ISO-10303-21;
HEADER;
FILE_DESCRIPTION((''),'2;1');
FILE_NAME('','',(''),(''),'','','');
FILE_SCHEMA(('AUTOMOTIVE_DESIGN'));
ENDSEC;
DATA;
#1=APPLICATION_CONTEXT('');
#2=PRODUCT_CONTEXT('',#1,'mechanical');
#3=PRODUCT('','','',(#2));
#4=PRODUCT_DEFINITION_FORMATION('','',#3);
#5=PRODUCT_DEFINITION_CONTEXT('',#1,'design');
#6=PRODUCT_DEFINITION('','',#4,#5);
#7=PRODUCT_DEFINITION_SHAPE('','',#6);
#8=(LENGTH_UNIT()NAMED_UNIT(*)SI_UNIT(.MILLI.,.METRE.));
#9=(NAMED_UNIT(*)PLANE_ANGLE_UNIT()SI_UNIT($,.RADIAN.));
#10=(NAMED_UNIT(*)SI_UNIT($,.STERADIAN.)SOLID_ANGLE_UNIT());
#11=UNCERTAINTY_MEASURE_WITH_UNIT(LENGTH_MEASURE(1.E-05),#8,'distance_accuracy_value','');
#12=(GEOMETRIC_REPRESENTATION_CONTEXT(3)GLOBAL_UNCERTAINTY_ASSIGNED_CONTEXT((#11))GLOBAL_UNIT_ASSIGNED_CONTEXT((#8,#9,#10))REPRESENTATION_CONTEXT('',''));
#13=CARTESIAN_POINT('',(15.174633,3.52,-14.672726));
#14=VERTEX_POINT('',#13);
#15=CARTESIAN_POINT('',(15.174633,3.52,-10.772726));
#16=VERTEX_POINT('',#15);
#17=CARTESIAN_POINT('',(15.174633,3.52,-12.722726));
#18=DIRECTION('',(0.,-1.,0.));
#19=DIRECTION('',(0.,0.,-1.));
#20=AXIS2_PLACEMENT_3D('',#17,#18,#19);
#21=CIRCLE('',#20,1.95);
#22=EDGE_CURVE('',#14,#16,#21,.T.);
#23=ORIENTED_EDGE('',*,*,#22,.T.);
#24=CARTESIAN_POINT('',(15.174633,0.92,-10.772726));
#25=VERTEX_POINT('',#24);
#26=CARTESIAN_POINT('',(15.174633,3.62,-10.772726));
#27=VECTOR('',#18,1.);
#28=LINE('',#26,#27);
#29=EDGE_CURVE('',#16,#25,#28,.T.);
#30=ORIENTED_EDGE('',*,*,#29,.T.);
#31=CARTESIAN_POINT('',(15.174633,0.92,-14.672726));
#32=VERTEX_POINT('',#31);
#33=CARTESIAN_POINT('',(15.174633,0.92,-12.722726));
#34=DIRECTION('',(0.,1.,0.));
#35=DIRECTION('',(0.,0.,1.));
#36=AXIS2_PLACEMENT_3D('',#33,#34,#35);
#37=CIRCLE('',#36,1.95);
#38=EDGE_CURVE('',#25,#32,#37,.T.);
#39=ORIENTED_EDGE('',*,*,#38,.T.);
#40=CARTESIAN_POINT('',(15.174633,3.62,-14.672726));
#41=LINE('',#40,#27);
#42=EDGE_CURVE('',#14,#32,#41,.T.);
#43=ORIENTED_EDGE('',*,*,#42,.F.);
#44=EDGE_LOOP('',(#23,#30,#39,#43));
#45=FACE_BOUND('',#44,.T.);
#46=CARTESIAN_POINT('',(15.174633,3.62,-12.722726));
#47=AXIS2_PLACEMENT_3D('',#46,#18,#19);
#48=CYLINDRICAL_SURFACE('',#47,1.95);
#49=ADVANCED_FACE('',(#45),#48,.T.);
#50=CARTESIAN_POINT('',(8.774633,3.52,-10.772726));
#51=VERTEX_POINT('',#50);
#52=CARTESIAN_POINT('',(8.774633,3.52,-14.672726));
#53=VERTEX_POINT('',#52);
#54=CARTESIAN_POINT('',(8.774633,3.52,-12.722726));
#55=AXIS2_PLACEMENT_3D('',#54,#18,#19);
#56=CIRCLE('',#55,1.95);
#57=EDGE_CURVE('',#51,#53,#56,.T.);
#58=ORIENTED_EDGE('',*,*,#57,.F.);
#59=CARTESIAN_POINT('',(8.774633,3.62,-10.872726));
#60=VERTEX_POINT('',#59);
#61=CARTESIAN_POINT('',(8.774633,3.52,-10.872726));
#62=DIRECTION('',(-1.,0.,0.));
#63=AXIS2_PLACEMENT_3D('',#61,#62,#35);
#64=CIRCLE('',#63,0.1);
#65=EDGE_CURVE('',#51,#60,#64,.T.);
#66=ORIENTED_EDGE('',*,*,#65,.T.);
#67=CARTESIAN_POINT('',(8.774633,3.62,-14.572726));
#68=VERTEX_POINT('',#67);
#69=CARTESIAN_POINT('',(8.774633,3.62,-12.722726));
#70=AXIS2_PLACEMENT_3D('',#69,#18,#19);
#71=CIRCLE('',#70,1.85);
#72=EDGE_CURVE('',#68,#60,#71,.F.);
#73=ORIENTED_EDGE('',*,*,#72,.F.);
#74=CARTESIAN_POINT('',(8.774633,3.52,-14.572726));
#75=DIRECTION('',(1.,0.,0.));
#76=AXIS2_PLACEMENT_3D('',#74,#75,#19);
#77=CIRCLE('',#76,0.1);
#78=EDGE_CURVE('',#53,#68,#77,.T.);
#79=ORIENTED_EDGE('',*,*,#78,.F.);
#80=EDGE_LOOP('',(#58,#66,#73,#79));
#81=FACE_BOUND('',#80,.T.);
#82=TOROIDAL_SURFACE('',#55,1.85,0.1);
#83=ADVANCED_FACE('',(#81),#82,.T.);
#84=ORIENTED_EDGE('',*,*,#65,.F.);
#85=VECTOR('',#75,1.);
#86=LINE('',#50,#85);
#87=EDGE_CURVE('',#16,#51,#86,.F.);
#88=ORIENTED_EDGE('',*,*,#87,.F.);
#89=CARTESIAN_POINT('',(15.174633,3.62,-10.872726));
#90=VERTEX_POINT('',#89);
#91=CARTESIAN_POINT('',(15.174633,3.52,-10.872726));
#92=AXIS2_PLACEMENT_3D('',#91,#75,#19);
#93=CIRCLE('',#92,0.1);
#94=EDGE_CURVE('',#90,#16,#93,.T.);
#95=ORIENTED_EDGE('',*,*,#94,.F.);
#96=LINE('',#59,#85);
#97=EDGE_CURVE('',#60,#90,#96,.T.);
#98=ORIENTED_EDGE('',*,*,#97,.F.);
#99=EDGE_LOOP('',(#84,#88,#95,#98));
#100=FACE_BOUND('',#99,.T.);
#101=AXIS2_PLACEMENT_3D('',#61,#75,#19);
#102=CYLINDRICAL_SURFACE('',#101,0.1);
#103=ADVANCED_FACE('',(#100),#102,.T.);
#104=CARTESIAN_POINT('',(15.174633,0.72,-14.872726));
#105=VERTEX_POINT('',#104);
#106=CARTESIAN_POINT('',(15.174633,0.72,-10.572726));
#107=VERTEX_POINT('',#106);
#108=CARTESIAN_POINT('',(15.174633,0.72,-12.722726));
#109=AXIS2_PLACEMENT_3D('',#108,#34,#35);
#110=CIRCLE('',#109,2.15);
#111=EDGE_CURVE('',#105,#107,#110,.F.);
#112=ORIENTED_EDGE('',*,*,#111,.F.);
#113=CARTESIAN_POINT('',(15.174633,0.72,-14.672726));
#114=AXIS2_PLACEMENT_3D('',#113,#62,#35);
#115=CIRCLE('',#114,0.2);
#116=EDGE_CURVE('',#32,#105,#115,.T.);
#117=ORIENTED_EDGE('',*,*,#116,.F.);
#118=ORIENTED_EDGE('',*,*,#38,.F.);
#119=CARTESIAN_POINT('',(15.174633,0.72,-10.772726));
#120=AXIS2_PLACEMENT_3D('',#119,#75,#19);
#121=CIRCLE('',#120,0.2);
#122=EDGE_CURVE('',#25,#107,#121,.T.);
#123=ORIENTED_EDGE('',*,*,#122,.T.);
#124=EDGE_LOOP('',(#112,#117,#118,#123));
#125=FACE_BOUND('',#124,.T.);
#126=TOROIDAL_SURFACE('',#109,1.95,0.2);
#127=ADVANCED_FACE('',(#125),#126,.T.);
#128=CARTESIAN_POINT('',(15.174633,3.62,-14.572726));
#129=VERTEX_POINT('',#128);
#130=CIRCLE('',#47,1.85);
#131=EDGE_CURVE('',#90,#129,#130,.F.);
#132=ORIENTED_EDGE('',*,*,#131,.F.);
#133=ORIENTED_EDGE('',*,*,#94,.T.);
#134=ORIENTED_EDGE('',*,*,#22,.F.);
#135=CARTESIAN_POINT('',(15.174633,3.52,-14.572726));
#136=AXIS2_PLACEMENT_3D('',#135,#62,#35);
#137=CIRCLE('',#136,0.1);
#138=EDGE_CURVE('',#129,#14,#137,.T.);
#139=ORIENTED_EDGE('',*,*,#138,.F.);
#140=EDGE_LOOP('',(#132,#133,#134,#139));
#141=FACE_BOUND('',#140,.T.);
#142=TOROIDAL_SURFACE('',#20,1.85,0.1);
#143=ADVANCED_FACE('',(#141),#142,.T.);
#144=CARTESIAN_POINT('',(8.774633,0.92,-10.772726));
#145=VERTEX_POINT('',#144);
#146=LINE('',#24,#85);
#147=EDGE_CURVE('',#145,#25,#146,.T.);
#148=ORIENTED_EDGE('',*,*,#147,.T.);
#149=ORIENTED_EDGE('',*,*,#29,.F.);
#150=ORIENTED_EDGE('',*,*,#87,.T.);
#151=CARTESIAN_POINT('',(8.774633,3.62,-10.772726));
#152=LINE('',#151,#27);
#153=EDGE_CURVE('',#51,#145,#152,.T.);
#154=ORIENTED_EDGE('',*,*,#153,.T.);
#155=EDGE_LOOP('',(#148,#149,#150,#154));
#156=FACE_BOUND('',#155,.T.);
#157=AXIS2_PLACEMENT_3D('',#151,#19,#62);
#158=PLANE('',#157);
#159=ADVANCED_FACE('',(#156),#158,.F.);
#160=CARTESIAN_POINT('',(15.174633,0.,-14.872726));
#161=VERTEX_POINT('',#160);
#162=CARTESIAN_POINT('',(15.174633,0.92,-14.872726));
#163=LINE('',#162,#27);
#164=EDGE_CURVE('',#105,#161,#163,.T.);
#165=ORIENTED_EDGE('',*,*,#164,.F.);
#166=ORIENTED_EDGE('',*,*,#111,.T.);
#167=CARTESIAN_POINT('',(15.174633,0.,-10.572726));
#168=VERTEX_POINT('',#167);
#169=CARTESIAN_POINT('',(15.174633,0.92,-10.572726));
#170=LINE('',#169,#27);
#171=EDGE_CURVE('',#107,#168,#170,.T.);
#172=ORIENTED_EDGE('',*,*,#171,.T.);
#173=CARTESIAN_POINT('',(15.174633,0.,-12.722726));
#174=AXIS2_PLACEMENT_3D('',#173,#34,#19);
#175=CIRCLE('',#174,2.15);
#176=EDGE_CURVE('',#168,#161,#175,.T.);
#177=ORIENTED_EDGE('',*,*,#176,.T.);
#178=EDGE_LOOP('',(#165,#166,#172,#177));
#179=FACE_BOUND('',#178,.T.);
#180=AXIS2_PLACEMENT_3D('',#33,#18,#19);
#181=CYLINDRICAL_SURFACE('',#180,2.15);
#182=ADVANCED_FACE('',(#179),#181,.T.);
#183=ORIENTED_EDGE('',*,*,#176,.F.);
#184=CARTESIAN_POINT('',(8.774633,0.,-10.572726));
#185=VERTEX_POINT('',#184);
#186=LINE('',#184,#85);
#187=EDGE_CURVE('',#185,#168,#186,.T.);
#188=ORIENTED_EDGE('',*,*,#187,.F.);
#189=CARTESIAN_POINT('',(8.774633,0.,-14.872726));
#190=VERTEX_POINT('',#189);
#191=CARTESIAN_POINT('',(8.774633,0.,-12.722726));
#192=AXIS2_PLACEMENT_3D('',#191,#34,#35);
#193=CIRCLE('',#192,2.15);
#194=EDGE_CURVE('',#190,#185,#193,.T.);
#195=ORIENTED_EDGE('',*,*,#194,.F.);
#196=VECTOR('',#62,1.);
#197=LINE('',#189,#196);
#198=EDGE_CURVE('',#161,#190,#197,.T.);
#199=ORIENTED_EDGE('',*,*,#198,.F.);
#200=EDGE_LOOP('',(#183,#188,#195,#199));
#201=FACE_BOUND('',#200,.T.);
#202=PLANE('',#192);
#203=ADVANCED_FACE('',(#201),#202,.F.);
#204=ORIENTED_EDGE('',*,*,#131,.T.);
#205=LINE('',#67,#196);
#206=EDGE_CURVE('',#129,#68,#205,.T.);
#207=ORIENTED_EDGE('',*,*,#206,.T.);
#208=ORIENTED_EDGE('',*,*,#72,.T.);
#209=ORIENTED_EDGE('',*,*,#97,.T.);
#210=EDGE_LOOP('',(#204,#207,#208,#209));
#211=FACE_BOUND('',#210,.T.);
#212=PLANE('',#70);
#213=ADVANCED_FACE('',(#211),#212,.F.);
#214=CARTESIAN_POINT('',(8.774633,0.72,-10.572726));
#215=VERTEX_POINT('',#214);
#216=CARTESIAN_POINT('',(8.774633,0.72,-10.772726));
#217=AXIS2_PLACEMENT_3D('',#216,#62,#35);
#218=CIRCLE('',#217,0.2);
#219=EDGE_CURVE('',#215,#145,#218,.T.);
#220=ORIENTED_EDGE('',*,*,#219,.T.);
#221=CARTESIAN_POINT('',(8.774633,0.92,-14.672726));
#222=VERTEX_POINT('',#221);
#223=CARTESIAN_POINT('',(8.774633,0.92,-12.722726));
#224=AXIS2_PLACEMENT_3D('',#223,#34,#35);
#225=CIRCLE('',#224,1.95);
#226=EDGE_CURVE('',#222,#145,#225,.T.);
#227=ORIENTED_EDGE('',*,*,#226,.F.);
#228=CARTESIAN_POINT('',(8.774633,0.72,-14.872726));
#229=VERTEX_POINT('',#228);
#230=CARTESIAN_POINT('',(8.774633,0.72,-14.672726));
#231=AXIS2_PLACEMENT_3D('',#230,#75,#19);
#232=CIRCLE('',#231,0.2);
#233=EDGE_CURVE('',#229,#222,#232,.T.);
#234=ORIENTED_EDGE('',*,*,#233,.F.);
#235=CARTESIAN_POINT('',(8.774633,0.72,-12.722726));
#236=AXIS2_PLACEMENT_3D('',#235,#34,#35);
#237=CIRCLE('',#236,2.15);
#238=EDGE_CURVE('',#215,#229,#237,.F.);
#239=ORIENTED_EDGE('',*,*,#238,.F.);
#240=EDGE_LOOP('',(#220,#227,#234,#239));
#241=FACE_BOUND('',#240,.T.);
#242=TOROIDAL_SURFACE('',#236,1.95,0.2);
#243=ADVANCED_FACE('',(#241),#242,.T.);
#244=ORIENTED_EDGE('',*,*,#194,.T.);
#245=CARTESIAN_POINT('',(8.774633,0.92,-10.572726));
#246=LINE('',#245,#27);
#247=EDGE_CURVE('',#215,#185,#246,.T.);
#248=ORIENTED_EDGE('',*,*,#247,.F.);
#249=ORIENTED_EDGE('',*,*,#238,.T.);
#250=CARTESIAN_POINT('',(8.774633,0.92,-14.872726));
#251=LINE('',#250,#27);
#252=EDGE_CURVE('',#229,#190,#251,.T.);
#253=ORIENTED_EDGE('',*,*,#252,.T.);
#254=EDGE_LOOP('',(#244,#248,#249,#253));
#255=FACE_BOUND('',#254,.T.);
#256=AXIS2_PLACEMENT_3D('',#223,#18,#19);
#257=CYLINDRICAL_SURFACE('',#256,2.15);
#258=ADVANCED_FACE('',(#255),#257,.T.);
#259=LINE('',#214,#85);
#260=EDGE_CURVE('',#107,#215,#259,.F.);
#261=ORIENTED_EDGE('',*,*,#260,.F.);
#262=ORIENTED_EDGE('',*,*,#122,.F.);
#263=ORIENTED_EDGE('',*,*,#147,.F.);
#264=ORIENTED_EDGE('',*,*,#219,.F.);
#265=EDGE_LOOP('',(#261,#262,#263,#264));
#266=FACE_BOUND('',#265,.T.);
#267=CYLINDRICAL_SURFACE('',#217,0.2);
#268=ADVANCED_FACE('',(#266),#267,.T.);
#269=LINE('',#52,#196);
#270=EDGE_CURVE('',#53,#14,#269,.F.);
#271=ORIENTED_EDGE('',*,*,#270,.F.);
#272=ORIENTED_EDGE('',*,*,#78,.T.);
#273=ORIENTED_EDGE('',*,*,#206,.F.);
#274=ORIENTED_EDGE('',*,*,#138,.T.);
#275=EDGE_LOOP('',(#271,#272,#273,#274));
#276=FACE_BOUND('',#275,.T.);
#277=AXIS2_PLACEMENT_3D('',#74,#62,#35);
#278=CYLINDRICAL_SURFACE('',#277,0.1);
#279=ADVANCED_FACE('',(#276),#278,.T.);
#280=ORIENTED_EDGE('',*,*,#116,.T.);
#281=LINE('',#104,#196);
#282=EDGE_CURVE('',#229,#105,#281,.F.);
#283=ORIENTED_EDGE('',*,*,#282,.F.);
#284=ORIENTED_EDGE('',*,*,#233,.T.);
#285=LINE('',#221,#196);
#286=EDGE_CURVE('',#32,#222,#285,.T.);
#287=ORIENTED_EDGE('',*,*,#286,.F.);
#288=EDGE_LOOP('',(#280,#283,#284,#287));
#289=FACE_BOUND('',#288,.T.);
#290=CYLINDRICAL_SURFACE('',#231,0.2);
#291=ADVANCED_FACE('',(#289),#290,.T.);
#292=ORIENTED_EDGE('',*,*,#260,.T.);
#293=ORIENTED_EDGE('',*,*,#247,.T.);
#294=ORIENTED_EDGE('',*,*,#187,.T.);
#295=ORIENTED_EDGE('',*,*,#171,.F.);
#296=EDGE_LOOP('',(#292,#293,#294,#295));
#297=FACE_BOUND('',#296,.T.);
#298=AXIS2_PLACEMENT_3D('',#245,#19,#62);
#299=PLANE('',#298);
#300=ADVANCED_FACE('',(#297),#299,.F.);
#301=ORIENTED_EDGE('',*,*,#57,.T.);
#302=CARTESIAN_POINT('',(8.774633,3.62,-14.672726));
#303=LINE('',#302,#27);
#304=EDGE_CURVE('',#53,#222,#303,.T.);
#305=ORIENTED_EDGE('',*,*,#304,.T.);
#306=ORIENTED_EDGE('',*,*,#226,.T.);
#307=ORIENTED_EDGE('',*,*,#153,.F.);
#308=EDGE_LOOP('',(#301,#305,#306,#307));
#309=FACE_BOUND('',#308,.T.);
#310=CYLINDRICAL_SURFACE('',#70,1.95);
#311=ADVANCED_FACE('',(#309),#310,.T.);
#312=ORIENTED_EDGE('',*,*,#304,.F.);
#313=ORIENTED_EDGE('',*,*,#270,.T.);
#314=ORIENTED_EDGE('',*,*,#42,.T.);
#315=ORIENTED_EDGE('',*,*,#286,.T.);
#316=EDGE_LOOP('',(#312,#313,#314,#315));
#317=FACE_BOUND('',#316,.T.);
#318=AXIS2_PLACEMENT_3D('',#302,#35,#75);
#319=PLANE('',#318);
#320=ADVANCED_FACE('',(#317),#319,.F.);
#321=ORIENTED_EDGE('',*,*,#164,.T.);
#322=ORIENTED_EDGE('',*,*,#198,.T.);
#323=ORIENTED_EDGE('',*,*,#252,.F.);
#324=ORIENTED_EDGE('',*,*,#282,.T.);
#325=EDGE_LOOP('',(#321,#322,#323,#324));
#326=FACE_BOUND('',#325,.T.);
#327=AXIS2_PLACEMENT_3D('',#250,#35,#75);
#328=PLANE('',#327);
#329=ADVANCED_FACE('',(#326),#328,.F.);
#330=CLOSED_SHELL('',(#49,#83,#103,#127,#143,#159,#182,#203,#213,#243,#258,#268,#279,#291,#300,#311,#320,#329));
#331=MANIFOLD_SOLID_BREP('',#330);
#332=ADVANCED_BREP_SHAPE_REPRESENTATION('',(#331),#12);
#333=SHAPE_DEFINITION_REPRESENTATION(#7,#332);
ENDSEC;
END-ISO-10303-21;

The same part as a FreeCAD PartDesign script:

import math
import FreeCAD as App
import Part
import Sketcher


def edges_at(feature, points):
    """Names of the edges that pass closest to the given points."""
    edges = feature.Shape.Edges
    near = lambda p: min(range(len(edges)), key=lambda i: edges[i].distToShape(Part.Vertex(*p))[0])
    return sorted({f"Edge{near(p) + 1}" for p in points})

doc = App.newDocument("Part")
body = doc.addObject("PartDesign::Body", "Body")

# Sketch on XZ plane
sketch1 = body.newObject("Sketcher::SketchObject", "Sketch")
sketch1.AttachmentSupport = (doc.getObject("XZ_Plane"), [""])
sketch1.MapMode = "FlatFace"
sketch1.addGeometry([
    Part.LineSegment(App.Vector(15.174633, -14.872726, 0), App.Vector(8.774633, -14.872726, 0)),
    Part.ArcOfCircle(Part.Circle(App.Vector(8.774633, -12.722726, 0), App.Vector(0, 0, 1), 2.15), math.radians(90), math.radians(270)),
    Part.LineSegment(App.Vector(8.774633, -10.572726, 0), App.Vector(15.174633, -10.572726, 0)),
    Part.ArcOfCircle(Part.Circle(App.Vector(15.174633, -12.722726, 0), App.Vector(0, 0, 1), 2.15), math.radians(-90), math.radians(90)),
], False)
sketch1.addConstraint([
    Sketcher.Constraint("Tangent", 0, 2, 1, 2),
    Sketcher.Constraint("Tangent", 1, 1, 2, 1),
    Sketcher.Constraint("Tangent", 2, 2, 3, 2),
    Sketcher.Constraint("Tangent", 3, 1, 0, 1),
    Sketcher.Constraint("Horizontal", 0),
    Sketcher.Constraint("Horizontal", 2),
    Sketcher.Constraint("Radius", 1, 2.15),
    Sketcher.Constraint("DistanceX", 0, 2, 0, 1, 6.4),
    Sketcher.Constraint("DistanceX", -1, 1, 1, 3, 8.774633),
    Sketcher.Constraint("DistanceY", 1, 3, -1, 1, 12.722726),
])
pad1 = body.newObject("PartDesign::Pad", "Pad")
pad1.Profile = sketch1
pad1.Length = 0.92
pad1.Reversed = True
doc.recompute()

fillet = body.newObject("PartDesign::Fillet", "Fillet")
fillet.Base = (pad1, edges_at(pad1, [
    (17.325, 0.92, -12.723),
    (11.975, 0.92, -14.873),
    (6.625, 0.92, -12.723),
    (11.975, 0.92, -10.573),
]))
fillet.Radius = 0.2

# Sketch on XZ plane
sketch2 = body.newObject("Sketcher::SketchObject", "Sketch001")
sketch2.AttachmentSupport = (doc.getObject("XZ_Plane"), [""])
sketch2.MapMode = "FlatFace"
sketch2.AttachmentOffset = App.Placement(App.Vector(0, 0, -0.92), App.Rotation())
sketch2.addGeometry([
    Part.LineSegment(App.Vector(15.174633, -14.672726, 0), App.Vector(8.774633, -14.672726, 0)),
    Part.ArcOfCircle(Part.Circle(App.Vector(8.774633, -12.722726, 0), App.Vector(0, 0, 1), 1.95), math.radians(90), math.radians(270)),
    Part.LineSegment(App.Vector(8.774633, -10.772726, 0), App.Vector(15.174633, -10.772726, 0)),
    Part.ArcOfCircle(Part.Circle(App.Vector(15.174633, -12.722726, 0), App.Vector(0, 0, 1), 1.95), math.radians(-90), math.radians(90)),
], False)
sketch2.addConstraint([
    Sketcher.Constraint("Tangent", 0, 2, 1, 2),
    Sketcher.Constraint("Tangent", 1, 1, 2, 1),
    Sketcher.Constraint("Tangent", 2, 2, 3, 2),
    Sketcher.Constraint("Tangent", 3, 1, 0, 1),
    Sketcher.Constraint("Horizontal", 0),
    Sketcher.Constraint("Horizontal", 2),
    Sketcher.Constraint("Radius", 1, 1.95),
    Sketcher.Constraint("DistanceX", 0, 2, 0, 1, 6.4),
    Sketcher.Constraint("DistanceX", -1, 1, 1, 3, 8.774633),
    Sketcher.Constraint("DistanceY", 1, 3, -1, 1, 12.722726),
])
pad2 = body.newObject("PartDesign::Pad", "Pad001")
pad2.Profile = sketch2
pad2.Length = 2.7
pad2.Reversed = True
doc.recompute()

fillet2 = body.newObject("PartDesign::Fillet", "Fillet001")
fillet2.Base = (pad2, edges_at(pad2, [
    (6.825, 3.62, -12.723),
    (11.975, 3.62, -10.773),
    (17.125, 3.62, -12.723),
    (11.975, 3.62, -14.673),
]))
fillet2.Radius = 0.1

doc.recompute()
